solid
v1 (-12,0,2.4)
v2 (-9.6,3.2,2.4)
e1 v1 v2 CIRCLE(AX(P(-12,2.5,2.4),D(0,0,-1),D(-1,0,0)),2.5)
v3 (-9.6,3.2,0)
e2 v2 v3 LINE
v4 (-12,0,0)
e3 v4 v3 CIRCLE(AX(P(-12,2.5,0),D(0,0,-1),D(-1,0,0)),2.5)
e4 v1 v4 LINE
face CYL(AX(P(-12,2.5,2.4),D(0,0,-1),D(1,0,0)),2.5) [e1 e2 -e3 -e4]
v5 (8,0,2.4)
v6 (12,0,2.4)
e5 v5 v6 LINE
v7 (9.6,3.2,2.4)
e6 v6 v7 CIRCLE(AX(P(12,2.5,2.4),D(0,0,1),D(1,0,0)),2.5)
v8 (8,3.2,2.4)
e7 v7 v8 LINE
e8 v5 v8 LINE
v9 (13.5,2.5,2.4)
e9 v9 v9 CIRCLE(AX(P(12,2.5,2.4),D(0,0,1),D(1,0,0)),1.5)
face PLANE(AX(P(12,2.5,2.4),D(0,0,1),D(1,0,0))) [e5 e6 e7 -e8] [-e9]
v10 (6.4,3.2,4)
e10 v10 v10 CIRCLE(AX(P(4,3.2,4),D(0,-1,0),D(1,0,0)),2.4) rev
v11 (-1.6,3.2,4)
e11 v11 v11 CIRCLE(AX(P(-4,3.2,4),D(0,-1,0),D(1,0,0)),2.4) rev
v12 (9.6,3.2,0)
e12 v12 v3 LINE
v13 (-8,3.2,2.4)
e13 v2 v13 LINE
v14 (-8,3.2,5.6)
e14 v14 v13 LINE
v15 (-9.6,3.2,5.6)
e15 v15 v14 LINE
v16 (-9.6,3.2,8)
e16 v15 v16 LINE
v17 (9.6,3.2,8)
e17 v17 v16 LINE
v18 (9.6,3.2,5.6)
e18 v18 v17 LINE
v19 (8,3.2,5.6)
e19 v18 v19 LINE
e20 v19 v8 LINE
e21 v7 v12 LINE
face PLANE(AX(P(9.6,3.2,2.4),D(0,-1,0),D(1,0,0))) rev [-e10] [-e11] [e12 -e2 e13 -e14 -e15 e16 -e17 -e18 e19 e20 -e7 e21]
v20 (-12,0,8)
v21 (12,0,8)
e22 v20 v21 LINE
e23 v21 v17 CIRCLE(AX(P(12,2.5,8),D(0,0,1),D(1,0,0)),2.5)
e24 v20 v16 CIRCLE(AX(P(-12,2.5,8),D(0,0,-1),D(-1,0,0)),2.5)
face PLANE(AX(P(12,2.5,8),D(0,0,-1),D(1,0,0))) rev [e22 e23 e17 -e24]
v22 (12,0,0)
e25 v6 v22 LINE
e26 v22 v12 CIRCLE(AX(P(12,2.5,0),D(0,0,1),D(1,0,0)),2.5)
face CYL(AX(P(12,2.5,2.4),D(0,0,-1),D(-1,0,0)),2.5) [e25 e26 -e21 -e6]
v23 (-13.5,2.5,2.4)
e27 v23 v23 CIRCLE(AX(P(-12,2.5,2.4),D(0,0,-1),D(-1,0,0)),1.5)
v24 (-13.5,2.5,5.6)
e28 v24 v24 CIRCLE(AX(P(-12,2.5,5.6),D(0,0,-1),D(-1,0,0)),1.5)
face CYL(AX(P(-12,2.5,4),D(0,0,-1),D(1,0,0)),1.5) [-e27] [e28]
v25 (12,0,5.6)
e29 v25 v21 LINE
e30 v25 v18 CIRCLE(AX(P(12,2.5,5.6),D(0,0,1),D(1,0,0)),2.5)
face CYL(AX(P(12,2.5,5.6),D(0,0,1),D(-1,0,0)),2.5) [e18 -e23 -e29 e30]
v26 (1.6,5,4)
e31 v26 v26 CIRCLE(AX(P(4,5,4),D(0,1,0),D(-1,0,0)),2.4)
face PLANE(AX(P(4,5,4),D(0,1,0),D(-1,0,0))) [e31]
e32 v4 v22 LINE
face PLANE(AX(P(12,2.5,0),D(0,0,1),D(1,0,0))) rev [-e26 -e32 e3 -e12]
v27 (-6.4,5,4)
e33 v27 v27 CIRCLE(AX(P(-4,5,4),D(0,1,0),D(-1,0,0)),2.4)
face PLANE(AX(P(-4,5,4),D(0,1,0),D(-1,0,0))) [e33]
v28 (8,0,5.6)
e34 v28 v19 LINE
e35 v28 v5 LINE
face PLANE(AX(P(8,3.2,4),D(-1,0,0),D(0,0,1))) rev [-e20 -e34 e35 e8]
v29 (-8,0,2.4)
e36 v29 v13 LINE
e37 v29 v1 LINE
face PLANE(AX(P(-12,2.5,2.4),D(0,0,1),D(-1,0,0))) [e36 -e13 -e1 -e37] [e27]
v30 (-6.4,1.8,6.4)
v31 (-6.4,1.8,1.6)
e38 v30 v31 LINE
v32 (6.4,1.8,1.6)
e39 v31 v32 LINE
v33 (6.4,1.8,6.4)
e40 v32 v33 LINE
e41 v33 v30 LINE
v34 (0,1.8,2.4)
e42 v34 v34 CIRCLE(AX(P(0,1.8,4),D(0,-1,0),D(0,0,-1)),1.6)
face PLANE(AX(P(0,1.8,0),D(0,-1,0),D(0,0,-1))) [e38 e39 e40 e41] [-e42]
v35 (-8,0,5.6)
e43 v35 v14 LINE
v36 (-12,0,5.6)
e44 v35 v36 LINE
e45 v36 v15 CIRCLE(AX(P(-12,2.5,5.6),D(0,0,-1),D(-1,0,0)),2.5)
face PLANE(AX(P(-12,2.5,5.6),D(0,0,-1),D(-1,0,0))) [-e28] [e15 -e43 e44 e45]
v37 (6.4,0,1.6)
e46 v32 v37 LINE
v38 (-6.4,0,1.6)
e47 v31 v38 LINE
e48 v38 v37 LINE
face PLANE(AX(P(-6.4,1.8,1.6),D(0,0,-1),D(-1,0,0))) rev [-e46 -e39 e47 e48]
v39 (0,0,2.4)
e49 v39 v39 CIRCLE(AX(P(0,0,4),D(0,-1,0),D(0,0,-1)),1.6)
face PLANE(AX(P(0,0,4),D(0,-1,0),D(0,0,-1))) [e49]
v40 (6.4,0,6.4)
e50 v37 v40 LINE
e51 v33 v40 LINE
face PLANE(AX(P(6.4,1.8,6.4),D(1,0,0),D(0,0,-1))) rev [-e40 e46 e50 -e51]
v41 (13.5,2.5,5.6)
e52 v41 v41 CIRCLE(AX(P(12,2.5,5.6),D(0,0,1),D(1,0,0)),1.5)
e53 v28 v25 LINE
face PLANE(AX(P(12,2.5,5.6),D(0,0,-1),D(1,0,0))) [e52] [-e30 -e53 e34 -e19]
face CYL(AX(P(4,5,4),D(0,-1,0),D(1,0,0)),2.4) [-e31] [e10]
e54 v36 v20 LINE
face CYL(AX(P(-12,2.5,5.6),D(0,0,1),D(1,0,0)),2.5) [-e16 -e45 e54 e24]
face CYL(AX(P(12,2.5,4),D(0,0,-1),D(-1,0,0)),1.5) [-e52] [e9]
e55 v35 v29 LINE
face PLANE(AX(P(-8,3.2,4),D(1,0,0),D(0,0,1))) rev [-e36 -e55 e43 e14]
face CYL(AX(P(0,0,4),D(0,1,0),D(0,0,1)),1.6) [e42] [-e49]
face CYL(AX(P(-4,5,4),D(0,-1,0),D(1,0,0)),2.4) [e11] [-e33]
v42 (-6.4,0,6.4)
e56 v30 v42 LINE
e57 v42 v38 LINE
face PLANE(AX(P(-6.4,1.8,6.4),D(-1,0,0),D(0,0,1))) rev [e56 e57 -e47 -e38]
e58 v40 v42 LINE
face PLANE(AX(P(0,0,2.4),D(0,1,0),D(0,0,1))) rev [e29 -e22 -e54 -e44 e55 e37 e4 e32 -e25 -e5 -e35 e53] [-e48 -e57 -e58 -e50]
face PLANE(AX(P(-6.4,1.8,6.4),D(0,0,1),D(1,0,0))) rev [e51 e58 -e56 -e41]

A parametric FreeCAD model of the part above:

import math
import FreeCAD as App
import Part
import Sketcher

V = App.Vector
Q = App.Units.Quantity

doc = App.newDocument("Part")
body = doc.addObject("PartDesign::Body", "Body")

# Sketch on XY plane
sketch1 = body.newObject("Sketcher::SketchObject", "Sketch")
sketch1.AttachmentSupport = (doc.getObject("XY_Plane"), [""])
sketch1.MapMode = "FlatFace"
sketch1.addGeometry([
    Part.LineSegment(V(9.6, 3.2, 0), V(0, 3.2, 0)),
    Part.LineSegment(V(0, 3.2, 0), V(0, 0, 0)),
    Part.LineSegment(V(0, 0, 0), V(12, 0, 0)),
    Part.ArcOfCircle(Part.Circle(V(12, 2.5, 0), V(0, 0, 1), 2.5), math.radians(-90), math.radians(163.739795)),
], False)
sketch1.addConstraint([
    Sketcher.Constraint("Coincident", 0, 2, 1, 1),
    Sketcher.Constraint("Coincident", 1, 2, 2, 1),
    Sketcher.Constraint("Tangent", 2, 2, 3, 1),
    Sketcher.Constraint("Coincident", 3, 2, 0, 1),
    Sketcher.Constraint("Horizontal", 0),
    Sketcher.Constraint("Vertical", 1),
    Sketcher.Constraint("Horizontal", 2),
    Sketcher.Constraint("Coincident", 1, 2, -1, 1),
    Sketcher.Constraint("Radius", 3, Q("2.5 mm")),
    Sketcher.Constraint("DistanceX", 2, 1, 2, 2, Q("12 mm")),
    Sketcher.Constraint("DistanceX", 0, 2, 0, 1, Q("9.6 mm")),
])
pad1 = body.newObject("PartDesign::Pad", "Pad")
pad1.Profile = sketch1
pad1.Length = 2.4

# Sketch on XY plane
sketch2 = body.newObject("Sketcher::SketchObject", "Sketch001")
sketch2.AttachmentSupport = (doc.getObject("XY_Plane"), [""])
sketch2.MapMode = "FlatFace"
sketch2.AttachmentOffset = App.Placement(V(0, 0, 2.4), App.Rotation())
sketch2.addGeometry(Part.Circle(V(12, 2.5, 0), V(0, 0, 1), 1.5), False)
sketch2.addConstraint([
    Sketcher.Constraint("Diameter", 0, Q("3 mm")),
    Sketcher.Constraint("DistanceX", -1, 1, 0, 3, Q("12 mm")),
    Sketcher.Constraint("DistanceY", -1, 1, 0, 3, Q("2.5 mm")),
])
pad2 = body.newObject("PartDesign::Pad", "Pad001")
pad2.Profile = sketch2
pad2.Length = 1.6

# Sketch on XY plane
sketch3 = body.newObject("Sketcher::SketchObject", "Sketch002")
sketch3.AttachmentSupport = (doc.getObject("XY_Plane"), [""])
sketch3.MapMode = "FlatFace"
sketch3.AttachmentOffset = App.Placement(V(0, 0, 2.4), App.Rotation())
sketch3.addGeometry([
    Part.LineSegment(V(0, 3.2, 0), V(0, 0, 0)),
    Part.LineSegment(V(0, 0, 0), V(8, 0, 0)),
    Part.LineSegment(V(8, 0, 0), V(8, 3.2, 0)),
    Part.LineSegment(V(8, 3.2, 0), V(0, 3.2, 0)),
], False)
sketch3.addConstraint([
    Sketcher.Constraint("Coincident", 0, 2, 1, 1),
    Sketcher.Constraint("Coincident", 1, 2, 2, 1),
    Sketcher.Constraint("Coincident", 2, 2, 3, 1),
    Sketcher.Constraint("Coincident", 3, 2, 0, 1),
    Sketcher.Constraint("Vertical", 0),
    Sketcher.Constraint("Horizontal", 1),
    Sketcher.Constraint("Vertical", 2),
    Sketcher.Constraint("Horizontal", 3),
    Sketcher.Constraint("Coincident", 0, 2, -1, 1),
    Sketcher.Constraint("DistanceX", 1, 1, 1, 2, Q("8 mm")),
    Sketcher.Constraint("DistanceY", 0, 2, 0, 1, Q("3.2 mm")),
])
pad3 = body.newObject("PartDesign::Pad", "Pad002")
pad3.Profile = sketch3
pad3.Length = 1.6
body2 = doc.addObject("PartDesign::Body", "Body001")
doc.recompute()

body2.BaseFeature = body
doc.recompute()

mirroring = doc.addObject("Part::Mirroring", "Mirroring")
mirroring.Source = body
mirroring.Base = V(12, 2.5, 4)
mirroring.Normal = V(0, 0, 1)
body3 = doc.addObject("PartDesign::Body", "Body002")
body3.BaseFeature = mirroring
boolean = body2.newObject("PartDesign::Boolean", "Boolean")
boolean.Type = "Fuse"
boolean.addObjects([body3])
doc.recompute()
body4 = doc.addObject("PartDesign::Body", "Body003")
doc.recompute()

body4.BaseFeature = body2
doc.recompute()

mirroring2 = doc.addObject("Part::Mirroring", "Mirroring001")
mirroring2.Source = body2
mirroring2.Base = V(0, 3.2, 2.4)
mirroring2.Normal = V(1, 0, 0)
body5 = doc.addObject("PartDesign::Body", "Body004")
body5.BaseFeature = mirroring2
boolean2 = body4.newObject("PartDesign::Boolean", "Boolean001")
boolean2.Type = "Fuse"
boolean2.addObjects([body5])
doc.recompute()

# Sketch on XZ plane
sketch4 = body4.newObject("Sketcher::SketchObject", "Sketch003")
sketch4.AttachmentSupport = (doc.getObject("XZ_Plane003"), [""])
sketch4.MapMode = "FlatFace"
sketch4.AttachmentOffset = App.Placement(V(0, 0, -3.2), App.Rotation())
sketch4.addGeometry([
    Part.Circle(V(-4, 4, 0), V(0, 0, 1), 2.4),
    Part.Circle(V(4, 4, 0), V(0, 0, 1), 2.4),
], False)
sketch4.addConstraint([
    Sketcher.Constraint("Equal", 0, 1),
    Sketcher.Constraint("Symmetric", 0, 3, 1, 3, -2),
    Sketcher.Constraint("Diameter", 0, Q("4.8 mm")),
    Sketcher.Constraint("DistanceX", 0, 3, -1, 1, Q("4 mm")),
    Sketcher.Constraint("DistanceY", -1, 1, 0, 3, Q("4 mm")),
])
pad4 = body4.newObject("PartDesign::Pad", "Pad003")
pad4.Profile = sketch4
pad4.Length = 1.8
pad4.Reversed = True

# Sketch on XZ plane
sketch5 = body4.newObject("Sketcher::SketchObject", "Sketch004")
sketch5.AttachmentSupport = (doc.getObject("XZ_Plane003"), [""])
sketch5.MapMode = "FlatFace"
sketch5.addGeometry([
    Part.LineSegment(V(-6.4, 6.4, 0), V(-6.4, 1.6, 0)),
    Part.LineSegment(V(-6.4, 1.6, 0), V(6.4, 1.6, 0)),
    Part.LineSegment(V(6.4, 1.6, 0), V(6.4, 6.4, 0)),
    Part.LineSegment(V(6.4, 6.4, 0), V(-6.4, 6.4, 0)),
], False)
sketch5.addConstraint([
    Sketcher.Constraint("Coincident", 0, 2, 1, 1),
    Sketcher.Constraint("Coincident", 1, 2, 2, 1),
    Sketcher.Constraint("Coincident", 2, 2, 3, 1),
    Sketcher.Constraint("Coincident", 3, 2, 0, 1),
    Sketcher.Constraint("Vertical", 0),
    Sketcher.Constraint("Horizontal", 1),
    Sketcher.Constraint("Vertical", 2),
    Sketcher.Constraint("Horizontal", 3),
    Sketcher.Constraint("DistanceX", 1, 1, 1, 2, Q("12.8 mm")),
    Sketcher.Constraint("DistanceY", 0, 2, 0, 1, Q("4.8 mm")),
    Sketcher.Constraint("DistanceX", 0, 2, -1, 1, Q("6.4 mm")),
    Sketcher.Constraint("DistanceY", -1, 1, 0, 2, Q("1.6 mm")),
])
pocket1 = body4.newObject("PartDesign::Pocket", "Pocket")
pocket1.Profile = sketch5
pocket1.Length = 1.8

# Sketch on XZ plane
sketch6 = body4.newObject("Sketcher::SketchObject", "Sketch005")
sketch6.AttachmentSupport = (doc.getObject("XZ_Plane003"), [""])
sketch6.MapMode = "FlatFace"
sketch6.AttachmentOffset = App.Placement(V(0, 0, -1.8), App.Rotation())
sketch6.addGeometry(Part.Circle(V(0, 4, 0), V(0, 0, 1), 1.6), False)
sketch6.addConstraint([
    Sketcher.Constraint("PointOnObject", 0, 3, -2),
    Sketcher.Constraint("Diameter", 0, Q("3.2 mm")),
    Sketcher.Constraint("DistanceY", -1, 1, 0, 3, Q("4 mm")),
])
pad5 = body4.newObject("PartDesign::Pad", "Pad004")
pad5.Profile = sketch6
pad5.Length = 1.8
mirroring.Visibility = False
mirroring2.Visibility = False

doc.recompute()
